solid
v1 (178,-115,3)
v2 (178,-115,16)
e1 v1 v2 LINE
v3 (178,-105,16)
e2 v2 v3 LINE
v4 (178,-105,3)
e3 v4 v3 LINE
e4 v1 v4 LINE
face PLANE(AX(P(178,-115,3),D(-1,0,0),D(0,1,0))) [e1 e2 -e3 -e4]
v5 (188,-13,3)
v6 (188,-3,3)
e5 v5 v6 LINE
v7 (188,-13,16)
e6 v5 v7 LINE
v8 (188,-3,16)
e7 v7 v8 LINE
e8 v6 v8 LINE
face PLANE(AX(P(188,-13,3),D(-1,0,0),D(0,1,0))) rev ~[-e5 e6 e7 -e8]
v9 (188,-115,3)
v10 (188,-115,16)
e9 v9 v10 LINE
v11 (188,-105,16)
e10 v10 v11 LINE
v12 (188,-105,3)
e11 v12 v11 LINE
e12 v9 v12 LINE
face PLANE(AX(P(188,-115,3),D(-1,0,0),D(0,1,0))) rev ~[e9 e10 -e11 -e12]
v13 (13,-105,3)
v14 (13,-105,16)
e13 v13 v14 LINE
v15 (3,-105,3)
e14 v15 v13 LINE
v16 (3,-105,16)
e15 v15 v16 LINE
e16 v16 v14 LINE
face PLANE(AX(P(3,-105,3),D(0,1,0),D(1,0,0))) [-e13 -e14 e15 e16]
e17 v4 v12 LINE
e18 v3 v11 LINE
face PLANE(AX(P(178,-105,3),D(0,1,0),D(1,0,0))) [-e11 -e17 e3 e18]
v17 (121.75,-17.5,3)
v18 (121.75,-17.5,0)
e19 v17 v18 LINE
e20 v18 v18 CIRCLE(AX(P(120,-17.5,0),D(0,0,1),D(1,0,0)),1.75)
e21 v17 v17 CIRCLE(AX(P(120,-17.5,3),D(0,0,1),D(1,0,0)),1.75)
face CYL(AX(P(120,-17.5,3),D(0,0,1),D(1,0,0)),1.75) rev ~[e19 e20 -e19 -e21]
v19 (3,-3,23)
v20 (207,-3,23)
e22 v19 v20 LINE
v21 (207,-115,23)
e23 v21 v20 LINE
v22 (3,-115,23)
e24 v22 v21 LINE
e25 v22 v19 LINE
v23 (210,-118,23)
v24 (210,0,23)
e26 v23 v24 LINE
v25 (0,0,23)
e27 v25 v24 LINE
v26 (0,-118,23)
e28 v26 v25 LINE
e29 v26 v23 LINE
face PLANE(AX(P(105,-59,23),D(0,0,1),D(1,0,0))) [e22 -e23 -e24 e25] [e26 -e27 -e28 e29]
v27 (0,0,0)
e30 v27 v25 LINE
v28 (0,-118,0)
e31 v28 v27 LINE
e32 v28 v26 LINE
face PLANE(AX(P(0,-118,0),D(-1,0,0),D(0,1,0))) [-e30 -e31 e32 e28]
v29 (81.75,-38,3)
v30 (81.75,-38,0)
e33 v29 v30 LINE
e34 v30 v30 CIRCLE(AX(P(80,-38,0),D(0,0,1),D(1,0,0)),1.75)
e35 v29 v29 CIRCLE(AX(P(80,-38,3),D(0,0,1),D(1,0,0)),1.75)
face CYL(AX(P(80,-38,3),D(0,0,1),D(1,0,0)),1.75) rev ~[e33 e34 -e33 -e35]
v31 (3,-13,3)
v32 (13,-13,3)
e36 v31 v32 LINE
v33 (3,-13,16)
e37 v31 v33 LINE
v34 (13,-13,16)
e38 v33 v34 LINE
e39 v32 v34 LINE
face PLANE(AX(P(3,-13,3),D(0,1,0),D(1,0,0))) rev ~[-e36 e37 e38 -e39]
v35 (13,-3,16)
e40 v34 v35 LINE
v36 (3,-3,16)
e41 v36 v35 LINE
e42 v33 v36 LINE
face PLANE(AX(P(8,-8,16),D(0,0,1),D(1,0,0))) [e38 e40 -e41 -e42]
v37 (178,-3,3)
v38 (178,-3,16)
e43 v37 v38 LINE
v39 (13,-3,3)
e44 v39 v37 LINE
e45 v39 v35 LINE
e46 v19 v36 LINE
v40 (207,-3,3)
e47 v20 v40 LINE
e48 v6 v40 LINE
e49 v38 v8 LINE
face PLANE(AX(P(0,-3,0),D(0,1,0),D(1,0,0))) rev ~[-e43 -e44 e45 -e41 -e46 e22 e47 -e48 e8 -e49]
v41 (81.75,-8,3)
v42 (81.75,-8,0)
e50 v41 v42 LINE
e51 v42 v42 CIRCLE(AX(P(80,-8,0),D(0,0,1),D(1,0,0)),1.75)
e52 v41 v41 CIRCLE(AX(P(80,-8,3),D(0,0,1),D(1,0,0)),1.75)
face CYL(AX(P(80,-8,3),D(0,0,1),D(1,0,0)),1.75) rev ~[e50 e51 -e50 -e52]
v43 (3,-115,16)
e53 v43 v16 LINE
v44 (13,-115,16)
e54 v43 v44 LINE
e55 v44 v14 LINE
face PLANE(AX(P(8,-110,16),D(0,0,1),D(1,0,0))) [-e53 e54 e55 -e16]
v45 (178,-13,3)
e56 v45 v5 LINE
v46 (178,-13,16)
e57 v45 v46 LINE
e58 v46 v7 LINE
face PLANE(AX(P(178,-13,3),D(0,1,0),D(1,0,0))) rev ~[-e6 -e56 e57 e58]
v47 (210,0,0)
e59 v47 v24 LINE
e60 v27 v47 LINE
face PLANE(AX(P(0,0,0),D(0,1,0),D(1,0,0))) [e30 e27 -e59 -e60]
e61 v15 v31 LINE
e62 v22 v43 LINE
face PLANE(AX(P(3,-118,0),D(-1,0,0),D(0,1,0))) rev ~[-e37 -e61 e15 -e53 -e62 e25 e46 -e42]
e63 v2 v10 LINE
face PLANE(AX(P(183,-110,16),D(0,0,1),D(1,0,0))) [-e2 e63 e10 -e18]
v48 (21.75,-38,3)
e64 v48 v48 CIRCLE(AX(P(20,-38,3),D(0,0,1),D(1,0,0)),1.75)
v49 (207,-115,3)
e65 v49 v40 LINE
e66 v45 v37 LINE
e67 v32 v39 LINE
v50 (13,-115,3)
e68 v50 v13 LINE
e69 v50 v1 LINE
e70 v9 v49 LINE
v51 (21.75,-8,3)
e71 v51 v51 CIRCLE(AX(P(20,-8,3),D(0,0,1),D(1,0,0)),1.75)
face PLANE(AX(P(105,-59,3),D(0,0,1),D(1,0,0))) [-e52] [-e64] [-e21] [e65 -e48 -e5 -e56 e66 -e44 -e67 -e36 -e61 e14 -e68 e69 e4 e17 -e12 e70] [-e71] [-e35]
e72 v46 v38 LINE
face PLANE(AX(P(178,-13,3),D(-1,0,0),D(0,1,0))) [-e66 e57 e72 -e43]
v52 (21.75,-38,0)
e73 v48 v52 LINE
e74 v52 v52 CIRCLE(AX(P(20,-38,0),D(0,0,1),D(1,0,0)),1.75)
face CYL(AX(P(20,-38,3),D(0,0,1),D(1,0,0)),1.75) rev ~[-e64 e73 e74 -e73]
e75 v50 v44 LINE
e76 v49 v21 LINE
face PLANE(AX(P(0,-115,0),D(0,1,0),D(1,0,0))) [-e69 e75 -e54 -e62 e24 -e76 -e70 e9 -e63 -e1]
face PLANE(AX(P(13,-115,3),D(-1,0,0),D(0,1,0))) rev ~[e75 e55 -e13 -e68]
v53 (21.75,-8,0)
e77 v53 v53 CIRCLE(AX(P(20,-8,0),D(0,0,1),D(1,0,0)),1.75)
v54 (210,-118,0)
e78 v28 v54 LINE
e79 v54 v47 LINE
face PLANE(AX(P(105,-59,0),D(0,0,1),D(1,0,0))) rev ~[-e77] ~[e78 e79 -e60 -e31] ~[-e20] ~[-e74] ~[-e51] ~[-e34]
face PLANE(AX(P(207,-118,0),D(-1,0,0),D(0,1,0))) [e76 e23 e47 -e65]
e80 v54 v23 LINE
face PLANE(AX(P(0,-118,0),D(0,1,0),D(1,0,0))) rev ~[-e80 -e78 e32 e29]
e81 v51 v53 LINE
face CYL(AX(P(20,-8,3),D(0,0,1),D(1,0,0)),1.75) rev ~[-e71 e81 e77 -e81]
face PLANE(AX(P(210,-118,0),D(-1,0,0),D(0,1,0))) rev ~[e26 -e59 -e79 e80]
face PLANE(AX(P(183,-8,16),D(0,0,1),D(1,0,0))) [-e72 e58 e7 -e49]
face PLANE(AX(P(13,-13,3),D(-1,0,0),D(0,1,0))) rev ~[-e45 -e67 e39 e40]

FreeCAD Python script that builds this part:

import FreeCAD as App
import Part
import Sketcher
from FreeCAD import Vector
Q = App.Units.Quantity


def faces_at(feature, points):
    """Names of the faces that lie closest to the given points."""
    faces = feature.Shape.Faces
    near = lambda p: min(range(len(faces)), key=lambda i: faces[i].distToShape(Part.Vertex(*p))[0])
    return sorted({f"Face{near(p) + 1}" for p in points})


def add_polygon(sketch, points):
    """Adds a closed chain of lines whose ends are joined by coincident constraints."""
    first, n = sketch.GeometryCount, len(points)
    for a, b in zip(points, points[1:] + points[:1]):
        sketch.addGeometry(Part.LineSegment(App.Vector(*a, 0), App.Vector(*b, 0)), False)
    for i in range(n):
        sketch.addConstraint(Sketcher.Constraint("Coincident", first + i, 2, first + (i + 1) % n, 1))

doc = App.newDocument("Part")
body = doc.addObject("PartDesign::Body", "Body")

# Sketch on XY plane
sketch1 = body.newObject("Sketcher::SketchObject", "Sketch")
sketch1.AttachmentSupport = (doc.getObject("XY_Plane"), [""])
sketch1.MapMode = "FlatFace"
add_polygon(sketch1, [(0, 0), (0, -118), (210, -118), (210, 0)])  # lines 0-3
sketch1.addConstraint(Sketcher.Constraint("Vertical", 0))
sketch1.addConstraint(Sketcher.Constraint("Horizontal", 1))
sketch1.addConstraint(Sketcher.Constraint("Vertical", 2))
sketch1.addConstraint(Sketcher.Constraint("Horizontal", 3))
sketch1.addConstraint(Sketcher.Constraint("Coincident", 3, 2, -1, 1))
sketch1.addConstraint(Sketcher.Constraint("DistanceX", 1, 1, 1, 2, Q("210 mm")))
sketch1.addConstraint(Sketcher.Constraint("DistanceY", 0, 2, 0, 1, Q("118 mm")))
pad1 = body.newObject("PartDesign::Pad", "Pad")
pad1.Profile = sketch1
pad1.Length = 23
doc.recompute()

thickness = body.newObject("PartDesign::Thickness", "Thickness")
thickness.Base = (pad1, faces_at(pad1, [(105, -59, 23)]))
thickness.Value = 3
thickness.Reversed = True
thickness.Join = "Arc"

# Sketch on XY plane
sketch2 = body.newObject("Sketcher::SketchObject", "Sketch001")
sketch2.AttachmentSupport = (doc.getObject("XY_Plane"), [""])
sketch2.MapMode = "FlatFace"
sketch2.AttachmentOffset = App.Placement(Vector(0, 0, 3), App.Rotation())
add_polygon(sketch2, [(3, -3), (3, -13), (13, -13), (13, -3)])  # lines 0-3
add_polygon(sketch2, [(178, -3), (178, -13), (188, -13), (188, -3)])  # lines 4-7
add_polygon(sketch2, [(178, -105), (178, -115), (188, -115), (188, -105)])  # lines 8-11
add_polygon(sketch2, [(3, -105), (3, -115), (13, -115), (13, -105)])  # lines 12-15
sketch2.addConstraint(Sketcher.Constraint("Vertical", 0))
sketch2.addConstraint(Sketcher.Constraint("Horizontal", 1))
sketch2.addConstraint(Sketcher.Constraint("Vertical", 2))
sketch2.addConstraint(Sketcher.Constraint("Horizontal", 3))
sketch2.addConstraint(Sketcher.Constraint("Vertical", 4))
sketch2.addConstraint(Sketcher.Constraint("Horizontal", 5))
sketch2.addConstraint(Sketcher.Constraint("Vertical", 6))
sketch2.addConstraint(Sketcher.Constraint("Horizontal", 7))
sketch2.addConstraint(Sketcher.Constraint("Vertical", 8))
sketch2.addConstraint(Sketcher.Constraint("Horizontal", 9))
sketch2.addConstraint(Sketcher.Constraint("Vertical", 10))
sketch2.addConstraint(Sketcher.Constraint("Horizontal", 11))
sketch2.addConstraint(Sketcher.Constraint("Vertical", 12))
sketch2.addConstraint(Sketcher.Constraint("Horizontal", 13))
sketch2.addConstraint(Sketcher.Constraint("Vertical", 14))
sketch2.addConstraint(Sketcher.Constraint("Horizontal", 15))
sketch2.addConstraint(Sketcher.Constraint("Horizontal", 1, 2, 4, 2))
sketch2.addConstraint(Sketcher.Constraint("Horizontal", 3, 2, 6, 2))
sketch2.addConstraint(Sketcher.Constraint("Horizontal", 9, 2, 12, 2))
sketch2.addConstraint(Sketcher.Constraint("Horizontal", 11, 2, 14, 2))
sketch2.addConstraint(Sketcher.Constraint("Vertical", 7, 2, 8, 2))
sketch2.addConstraint(Sketcher.Constraint("Vertical", 6, 2, 9, 2))
sketch2.addConstraint(Sketcher.Constraint("Vertical", 3, 2, 12, 2))
sketch2.addConstraint(Sketcher.Constraint("Vertical", 2, 2, 13, 2))
sketch2.addConstraint(Sketcher.Constraint("Equal", 3, 5))
sketch2.addConstraint(Sketcher.Constraint("Equal", 15, 0))
sketch2.addConstraint(Sketcher.Constraint("Equal", 6, 8))
sketch2.addConstraint(Sketcher.Constraint("DistanceX", 1, 1, 1, 2, Q("10 mm")))
sketch2.addConstraint(Sketcher.Constraint("DistanceX", -1, 1, 0, 2, Q("3 mm")))
sketch2.addConstraint(Sketcher.Constraint("DistanceY", 0, 2, -1, 1, Q("13 mm")))
sketch2.addConstraint(Sketcher.Constraint("DistanceX", -1, 1, 4, 2, Q("178 mm")))
sketch2.addConstraint(Sketcher.Constraint("DistanceY", 8, 2, -1, 1, Q("115 mm")))
pad2 = body.newObject("PartDesign::Pad", "Pad001")
pad2.Profile = sketch2
pad2.Length = 13

# Sketch on XY plane
sketch3 = body.newObject("Sketcher::SketchObject", "Sketch002")
sketch3.AttachmentSupport = (doc.getObject("XY_Plane"), [""])
sketch3.MapMode = "FlatFace"
sketch3.AttachmentOffset = App.Placement(Vector(0, 0, 3), App.Rotation())
sketch3.addGeometry(Part.Circle(Vector(20, -8, 0), Vector(0, 0, 1), 1.8), False)
sketch3.addGeometry(Part.Circle(Vector(20, -38, 0), Vector(0, 0, 1), 1.8), False)
sketch3.addGeometry(Part.Circle(Vector(80, -38, 0), Vector(0, 0, 1), 1.8), False)
sketch3.addGeometry(Part.Circle(Vector(80, -8, 0), Vector(0, 0, 1), 1.8), False)
sketch3.addGeometry(Part.Circle(Vector(120, -17.5, 0), Vector(0, 0, 1), 1.8), False)
sketch3.addConstraint(Sketcher.Constraint("Equal", 0, 1))
sketch3.addConstraint(Sketcher.Constraint("Equal", 1, 2))
sketch3.addConstraint(Sketcher.Constraint("Equal", 2, 3))
sketch3.addConstraint(Sketcher.Constraint("Equal", 3, 4))
sketch3.addConstraint(Sketcher.Constraint("Horizontal", 1, 3, 2, 3))
sketch3.addConstraint(Sketcher.Constraint("Horizontal", 0, 3, 3, 3))
sketch3.addConstraint(Sketcher.Constraint("Vertical", 0, 3, 1, 3))
sketch3.addConstraint(Sketcher.Constraint("Vertical", 2, 3, 3, 3))
sketch3.addConstraint(Sketcher.Constraint("Diameter", 0, Q("3.5 mm")))
sketch3.addConstraint(Sketcher.Constraint("DistanceX", -1, 1, 0, 3, Q("20 mm")))
sketch3.addConstraint(Sketcher.Constraint("DistanceY", 0, 3, -1, 1, Q("8 mm")))
sketch3.addConstraint(Sketcher.Constraint("DistanceY", 1, 3, -1, 1, Q("38 mm")))
sketch3.addConstraint(Sketcher.Constraint("DistanceX", -1, 1, 2, 3, Q("80 mm")))
sketch3.addConstraint(Sketcher.Constraint("DistanceX", -1, 1, 4, 3, Q("120 mm")))
sketch3.addConstraint(Sketcher.Constraint("DistanceY", 4, 3, -1, 1, Q("17.5 mm")))
pocket1 = body.newObject("PartDesign::Pocket", "Pocket")
pocket1.Profile = sketch3
pocket1.Length = 25

doc.recompute()
